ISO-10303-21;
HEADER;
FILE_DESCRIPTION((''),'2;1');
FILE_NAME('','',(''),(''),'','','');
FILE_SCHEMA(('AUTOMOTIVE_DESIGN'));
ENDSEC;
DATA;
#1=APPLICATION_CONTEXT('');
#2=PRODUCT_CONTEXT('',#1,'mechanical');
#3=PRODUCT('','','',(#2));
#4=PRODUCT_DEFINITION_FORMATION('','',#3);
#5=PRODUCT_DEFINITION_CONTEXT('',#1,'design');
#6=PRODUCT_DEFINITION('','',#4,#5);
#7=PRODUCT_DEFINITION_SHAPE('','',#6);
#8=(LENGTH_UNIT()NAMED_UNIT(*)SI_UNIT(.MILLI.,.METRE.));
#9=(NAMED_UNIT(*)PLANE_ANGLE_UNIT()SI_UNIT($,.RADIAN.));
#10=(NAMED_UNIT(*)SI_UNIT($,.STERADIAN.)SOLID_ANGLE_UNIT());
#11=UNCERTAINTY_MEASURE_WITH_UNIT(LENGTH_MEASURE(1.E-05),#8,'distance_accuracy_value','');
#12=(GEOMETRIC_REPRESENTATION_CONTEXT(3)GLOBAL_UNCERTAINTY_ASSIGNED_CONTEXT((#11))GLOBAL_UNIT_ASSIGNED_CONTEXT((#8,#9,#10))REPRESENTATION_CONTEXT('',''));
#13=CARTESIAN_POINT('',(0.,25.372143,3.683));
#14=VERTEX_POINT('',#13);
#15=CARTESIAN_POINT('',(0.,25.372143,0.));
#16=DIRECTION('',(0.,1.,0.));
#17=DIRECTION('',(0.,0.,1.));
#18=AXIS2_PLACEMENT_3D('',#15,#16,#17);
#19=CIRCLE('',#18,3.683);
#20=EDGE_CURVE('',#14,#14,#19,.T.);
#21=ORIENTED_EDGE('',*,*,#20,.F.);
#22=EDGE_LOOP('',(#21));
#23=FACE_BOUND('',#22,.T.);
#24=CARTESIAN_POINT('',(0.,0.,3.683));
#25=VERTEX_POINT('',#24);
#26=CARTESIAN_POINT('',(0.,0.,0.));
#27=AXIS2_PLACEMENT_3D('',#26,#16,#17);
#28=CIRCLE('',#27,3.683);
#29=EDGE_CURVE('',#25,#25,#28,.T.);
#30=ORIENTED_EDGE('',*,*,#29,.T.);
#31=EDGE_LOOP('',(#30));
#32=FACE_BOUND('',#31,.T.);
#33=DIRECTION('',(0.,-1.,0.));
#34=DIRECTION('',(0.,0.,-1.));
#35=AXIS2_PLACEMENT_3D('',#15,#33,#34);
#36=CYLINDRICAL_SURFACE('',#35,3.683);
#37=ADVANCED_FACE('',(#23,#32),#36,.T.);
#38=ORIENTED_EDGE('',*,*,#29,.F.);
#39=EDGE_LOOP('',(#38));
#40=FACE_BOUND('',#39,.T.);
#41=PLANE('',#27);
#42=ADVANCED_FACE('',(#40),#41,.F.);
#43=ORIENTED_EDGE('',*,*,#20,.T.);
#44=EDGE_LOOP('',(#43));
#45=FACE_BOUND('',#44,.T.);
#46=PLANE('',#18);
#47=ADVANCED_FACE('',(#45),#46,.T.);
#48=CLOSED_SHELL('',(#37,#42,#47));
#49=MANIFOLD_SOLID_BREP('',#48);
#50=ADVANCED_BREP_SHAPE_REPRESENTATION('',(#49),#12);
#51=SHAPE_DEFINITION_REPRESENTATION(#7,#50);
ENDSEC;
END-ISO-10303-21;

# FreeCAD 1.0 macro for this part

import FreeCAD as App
import Part
import Sketcher
Q = App.Units.Quantity

doc = App.newDocument("Part")
body = doc.addObject("PartDesign::Body", "Body")

# Sketch on XZ plane
sketch1 = body.newObject("Sketcher::SketchObject", "Sketch")
sketch1.AttachmentSupport = (doc.getObject("XZ_Plane"), [""])
sketch1.MapMode = "FlatFace"
sketch1.addGeometry(Part.Circle(App.Vector(0, 0, 0), App.Vector(0, 0, 1), 3.7), False)
sketch1.addConstraint(Sketcher.Constraint("Coincident", 0, 3, -1, 1))
sketch1.addConstraint(Sketcher.Constraint("Diameter", 0, Q("0.29 in")))
pad1 = body.newObject("PartDesign::Pad", "Pad")
pad1.Profile = sketch1
pad1.Length = 25.372143
pad1.Reversed = True

doc.recompute()
